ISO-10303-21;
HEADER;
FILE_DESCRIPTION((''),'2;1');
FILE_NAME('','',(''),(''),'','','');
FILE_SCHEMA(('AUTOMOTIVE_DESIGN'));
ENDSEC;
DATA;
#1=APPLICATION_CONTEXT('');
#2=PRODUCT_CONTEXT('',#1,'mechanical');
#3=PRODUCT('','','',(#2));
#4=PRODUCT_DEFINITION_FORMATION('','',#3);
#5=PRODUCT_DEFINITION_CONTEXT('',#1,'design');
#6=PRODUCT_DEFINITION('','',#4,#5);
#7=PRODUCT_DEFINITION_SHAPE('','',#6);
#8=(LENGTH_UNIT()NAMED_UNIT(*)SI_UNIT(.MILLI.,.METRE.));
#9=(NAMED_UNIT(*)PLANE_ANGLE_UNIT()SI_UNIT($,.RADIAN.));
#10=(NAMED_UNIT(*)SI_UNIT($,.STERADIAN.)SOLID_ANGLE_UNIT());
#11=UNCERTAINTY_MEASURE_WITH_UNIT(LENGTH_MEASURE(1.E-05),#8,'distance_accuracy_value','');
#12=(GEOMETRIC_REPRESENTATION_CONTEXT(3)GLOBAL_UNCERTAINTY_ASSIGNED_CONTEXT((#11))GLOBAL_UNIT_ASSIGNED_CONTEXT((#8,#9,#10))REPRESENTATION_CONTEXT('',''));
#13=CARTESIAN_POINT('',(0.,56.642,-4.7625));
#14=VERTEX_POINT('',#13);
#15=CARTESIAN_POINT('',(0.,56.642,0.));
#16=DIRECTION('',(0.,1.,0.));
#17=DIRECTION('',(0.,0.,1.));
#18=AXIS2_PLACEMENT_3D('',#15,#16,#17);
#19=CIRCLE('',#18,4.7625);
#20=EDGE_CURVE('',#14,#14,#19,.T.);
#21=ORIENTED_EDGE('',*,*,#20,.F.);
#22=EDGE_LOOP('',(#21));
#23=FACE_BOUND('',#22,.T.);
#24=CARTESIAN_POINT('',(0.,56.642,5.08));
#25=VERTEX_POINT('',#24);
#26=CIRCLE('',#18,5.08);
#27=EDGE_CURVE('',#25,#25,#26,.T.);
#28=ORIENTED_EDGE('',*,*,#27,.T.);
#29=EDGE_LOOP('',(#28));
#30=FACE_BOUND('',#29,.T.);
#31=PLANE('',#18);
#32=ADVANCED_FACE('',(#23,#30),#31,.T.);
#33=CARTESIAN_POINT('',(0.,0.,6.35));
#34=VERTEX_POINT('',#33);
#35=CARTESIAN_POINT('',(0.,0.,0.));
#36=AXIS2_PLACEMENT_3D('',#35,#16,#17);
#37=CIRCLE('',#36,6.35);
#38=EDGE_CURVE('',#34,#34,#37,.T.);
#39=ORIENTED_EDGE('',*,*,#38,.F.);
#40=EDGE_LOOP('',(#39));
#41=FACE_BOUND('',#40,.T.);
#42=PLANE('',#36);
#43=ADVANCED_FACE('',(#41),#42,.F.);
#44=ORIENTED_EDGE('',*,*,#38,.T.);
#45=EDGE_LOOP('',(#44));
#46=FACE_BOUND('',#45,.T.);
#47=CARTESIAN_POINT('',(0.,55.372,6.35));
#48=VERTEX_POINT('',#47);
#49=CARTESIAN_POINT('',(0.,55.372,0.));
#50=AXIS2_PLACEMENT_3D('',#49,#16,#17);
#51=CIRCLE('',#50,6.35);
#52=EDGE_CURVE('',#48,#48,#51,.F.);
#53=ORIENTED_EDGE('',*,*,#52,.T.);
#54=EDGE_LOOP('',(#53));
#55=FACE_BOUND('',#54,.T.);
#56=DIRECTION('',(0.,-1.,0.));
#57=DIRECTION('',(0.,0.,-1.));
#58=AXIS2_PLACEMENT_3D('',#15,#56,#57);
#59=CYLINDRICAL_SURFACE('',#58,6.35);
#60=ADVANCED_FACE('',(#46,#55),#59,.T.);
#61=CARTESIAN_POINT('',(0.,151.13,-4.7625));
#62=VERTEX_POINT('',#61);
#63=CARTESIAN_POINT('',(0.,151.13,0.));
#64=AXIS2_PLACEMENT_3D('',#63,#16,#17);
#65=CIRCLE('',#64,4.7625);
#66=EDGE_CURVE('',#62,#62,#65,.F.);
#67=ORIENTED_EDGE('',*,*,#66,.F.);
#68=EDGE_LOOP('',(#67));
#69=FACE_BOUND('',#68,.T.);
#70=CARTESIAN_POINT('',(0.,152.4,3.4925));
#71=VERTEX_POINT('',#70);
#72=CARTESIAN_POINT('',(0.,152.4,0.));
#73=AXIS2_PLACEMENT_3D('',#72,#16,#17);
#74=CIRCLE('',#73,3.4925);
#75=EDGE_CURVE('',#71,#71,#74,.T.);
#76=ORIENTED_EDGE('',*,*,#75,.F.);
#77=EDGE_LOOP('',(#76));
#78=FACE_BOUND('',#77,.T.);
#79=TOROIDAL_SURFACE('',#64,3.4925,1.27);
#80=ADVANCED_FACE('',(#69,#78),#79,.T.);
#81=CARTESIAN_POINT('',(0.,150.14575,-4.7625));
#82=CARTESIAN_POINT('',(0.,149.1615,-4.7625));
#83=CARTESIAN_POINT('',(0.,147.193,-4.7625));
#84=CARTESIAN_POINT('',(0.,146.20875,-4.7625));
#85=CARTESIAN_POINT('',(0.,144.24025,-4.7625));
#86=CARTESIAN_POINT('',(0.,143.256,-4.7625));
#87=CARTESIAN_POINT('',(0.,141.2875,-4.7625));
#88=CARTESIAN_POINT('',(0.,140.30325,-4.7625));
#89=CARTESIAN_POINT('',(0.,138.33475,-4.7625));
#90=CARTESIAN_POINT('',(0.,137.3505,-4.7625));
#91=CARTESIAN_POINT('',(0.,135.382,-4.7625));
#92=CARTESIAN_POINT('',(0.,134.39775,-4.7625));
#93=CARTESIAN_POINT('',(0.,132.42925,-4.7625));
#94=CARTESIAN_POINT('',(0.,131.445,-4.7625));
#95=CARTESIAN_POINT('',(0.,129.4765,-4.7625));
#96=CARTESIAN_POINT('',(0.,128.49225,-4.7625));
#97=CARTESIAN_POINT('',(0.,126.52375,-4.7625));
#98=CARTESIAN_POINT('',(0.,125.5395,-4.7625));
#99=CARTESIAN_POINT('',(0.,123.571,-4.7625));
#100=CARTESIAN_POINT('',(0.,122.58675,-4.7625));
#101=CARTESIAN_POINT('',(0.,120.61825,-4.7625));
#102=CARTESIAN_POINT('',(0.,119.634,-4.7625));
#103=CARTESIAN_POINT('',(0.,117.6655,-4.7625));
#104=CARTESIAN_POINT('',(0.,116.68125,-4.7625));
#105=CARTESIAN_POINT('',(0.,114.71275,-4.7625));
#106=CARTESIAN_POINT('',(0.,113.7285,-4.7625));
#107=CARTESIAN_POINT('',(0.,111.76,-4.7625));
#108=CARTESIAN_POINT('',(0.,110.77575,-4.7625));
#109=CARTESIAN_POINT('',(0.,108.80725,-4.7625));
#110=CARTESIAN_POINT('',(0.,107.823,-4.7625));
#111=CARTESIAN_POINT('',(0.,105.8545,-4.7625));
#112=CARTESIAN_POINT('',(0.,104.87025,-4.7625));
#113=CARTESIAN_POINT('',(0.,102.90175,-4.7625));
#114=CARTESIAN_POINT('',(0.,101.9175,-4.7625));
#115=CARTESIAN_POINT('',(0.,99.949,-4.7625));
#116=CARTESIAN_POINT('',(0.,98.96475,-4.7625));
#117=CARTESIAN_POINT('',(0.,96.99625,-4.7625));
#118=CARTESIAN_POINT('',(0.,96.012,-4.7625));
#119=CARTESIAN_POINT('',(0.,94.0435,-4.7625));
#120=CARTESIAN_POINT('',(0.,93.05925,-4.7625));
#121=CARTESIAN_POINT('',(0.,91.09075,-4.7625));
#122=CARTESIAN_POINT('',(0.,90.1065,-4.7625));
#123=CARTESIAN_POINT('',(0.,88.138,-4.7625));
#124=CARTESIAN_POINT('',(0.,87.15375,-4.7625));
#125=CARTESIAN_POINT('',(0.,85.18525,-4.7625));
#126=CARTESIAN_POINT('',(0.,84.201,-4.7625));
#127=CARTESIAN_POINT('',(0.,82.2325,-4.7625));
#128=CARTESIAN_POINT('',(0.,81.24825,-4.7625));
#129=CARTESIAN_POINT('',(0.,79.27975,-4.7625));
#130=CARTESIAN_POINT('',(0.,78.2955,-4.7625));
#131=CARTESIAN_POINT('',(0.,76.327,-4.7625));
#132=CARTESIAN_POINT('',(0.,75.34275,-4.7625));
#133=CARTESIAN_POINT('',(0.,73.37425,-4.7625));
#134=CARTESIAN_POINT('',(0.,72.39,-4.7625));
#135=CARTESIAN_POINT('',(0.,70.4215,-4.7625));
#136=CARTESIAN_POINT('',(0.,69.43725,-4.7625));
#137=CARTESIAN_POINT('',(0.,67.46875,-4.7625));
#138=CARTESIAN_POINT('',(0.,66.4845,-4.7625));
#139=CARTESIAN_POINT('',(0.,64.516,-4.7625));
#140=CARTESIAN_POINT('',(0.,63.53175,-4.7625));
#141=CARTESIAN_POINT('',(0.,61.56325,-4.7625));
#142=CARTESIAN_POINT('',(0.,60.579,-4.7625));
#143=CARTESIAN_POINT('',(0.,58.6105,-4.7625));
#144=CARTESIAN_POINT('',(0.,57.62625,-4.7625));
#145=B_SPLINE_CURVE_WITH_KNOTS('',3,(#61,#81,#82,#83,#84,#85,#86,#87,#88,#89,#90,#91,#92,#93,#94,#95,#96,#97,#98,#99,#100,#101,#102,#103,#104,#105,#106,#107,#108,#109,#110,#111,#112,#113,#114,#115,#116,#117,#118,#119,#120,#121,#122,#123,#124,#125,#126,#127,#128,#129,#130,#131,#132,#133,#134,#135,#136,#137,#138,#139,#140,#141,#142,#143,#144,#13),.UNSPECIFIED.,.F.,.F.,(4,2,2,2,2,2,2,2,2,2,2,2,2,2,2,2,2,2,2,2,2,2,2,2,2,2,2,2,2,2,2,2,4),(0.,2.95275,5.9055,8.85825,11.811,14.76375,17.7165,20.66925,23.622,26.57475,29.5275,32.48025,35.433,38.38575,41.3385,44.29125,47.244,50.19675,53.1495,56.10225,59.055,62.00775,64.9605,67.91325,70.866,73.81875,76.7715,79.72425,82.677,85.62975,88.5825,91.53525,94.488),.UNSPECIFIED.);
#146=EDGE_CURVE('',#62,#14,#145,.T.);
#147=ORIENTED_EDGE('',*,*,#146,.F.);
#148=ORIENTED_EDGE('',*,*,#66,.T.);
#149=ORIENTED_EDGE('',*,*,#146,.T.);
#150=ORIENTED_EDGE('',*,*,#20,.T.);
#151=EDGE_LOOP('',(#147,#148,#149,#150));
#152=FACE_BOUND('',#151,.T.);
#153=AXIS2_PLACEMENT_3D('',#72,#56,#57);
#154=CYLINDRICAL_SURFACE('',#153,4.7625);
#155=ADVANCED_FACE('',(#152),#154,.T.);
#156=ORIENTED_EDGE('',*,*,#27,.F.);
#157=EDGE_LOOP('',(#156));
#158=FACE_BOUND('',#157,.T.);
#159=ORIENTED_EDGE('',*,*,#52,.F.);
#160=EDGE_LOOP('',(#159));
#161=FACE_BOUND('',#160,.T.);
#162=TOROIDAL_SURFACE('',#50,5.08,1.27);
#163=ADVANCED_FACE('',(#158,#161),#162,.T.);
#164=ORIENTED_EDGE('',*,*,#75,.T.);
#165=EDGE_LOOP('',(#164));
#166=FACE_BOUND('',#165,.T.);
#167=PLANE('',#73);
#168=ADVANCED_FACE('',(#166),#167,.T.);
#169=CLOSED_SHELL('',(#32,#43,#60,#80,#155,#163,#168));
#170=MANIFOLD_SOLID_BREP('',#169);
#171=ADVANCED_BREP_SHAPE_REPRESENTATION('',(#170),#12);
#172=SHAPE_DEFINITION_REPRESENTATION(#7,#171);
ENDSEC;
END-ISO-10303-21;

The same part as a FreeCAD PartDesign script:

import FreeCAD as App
import Part
import Sketcher

V = App.Vector
Q = App.Units.Quantity


def edges_at(feature, points):
    """Names of the edges that pass closest to the given points."""
    edges = feature.Shape.Edges
    near = lambda p: min(range(len(edges)), key=lambda i: edges[i].distToShape(Part.Vertex(*p))[0])
    return sorted({f"Edge{near(p) + 1}" for p in points})

doc = App.newDocument("Part")
body = doc.addObject("PartDesign::Body", "Body")

sketch1 = body.newObject("Sketcher::SketchObject", "Sketch")
sketch1.AttachmentSupport = (doc.getObject("XZ_Plane"), [""])
sketch1.MapMode = "FlatFace"
sketch1.addGeometry([
    Part.Circle(V(0, 0, 0), V(0, 0, 1), 6.35),
    Part.Circle(V(0, 0, 0), V(0, 0, 1), 4.7625),
], False)
sketch1.addConstraint([
    Sketcher.Constraint("Coincident", 0, 3, -1, 1),
    Sketcher.Constraint("Coincident", 1, 3, -1, 1),
    Sketcher.Constraint("Diameter", 0, Q("0.5 in")),
    Sketcher.Constraint("Diameter", 1, Q("0.375 in")),
])
pad1 = body.newObject("PartDesign::Pad", "Pad")
pad1.Profile = sketch1
pad1.Length = Q("2.23 in")
pad1.Reversed = True

sketch2 = body.newObject("Sketcher::SketchObject", "Sketch001")
sketch2.AttachmentSupport = (doc.getObject("XZ_Plane"), [""])
sketch2.MapMode = "FlatFace"
sketch2.addGeometry(Part.Circle(V(0, 0, 0), V(0, 0, 1), 4.7625), False)
sketch2.addConstraint([
    Sketcher.Constraint("Coincident", 0, 3, -1, 1),
    Sketcher.Constraint("Diameter", 0, Q("0.375 in")),
])
pad2 = body.newObject("PartDesign::Pad", "Pad001")
pad2.Profile = sketch2
pad2.Length = Q("6 in")
pad2.Reversed = True
doc.recompute()

fillet = body.newObject("PartDesign::Fillet", "Fillet")
fillet.Base = (pad2, edges_at(pad2, [(0, 152.4, 4.763), (0, 56.642, -6.35)]))
fillet.Radius = Q("0.05 in")

doc.recompute()
